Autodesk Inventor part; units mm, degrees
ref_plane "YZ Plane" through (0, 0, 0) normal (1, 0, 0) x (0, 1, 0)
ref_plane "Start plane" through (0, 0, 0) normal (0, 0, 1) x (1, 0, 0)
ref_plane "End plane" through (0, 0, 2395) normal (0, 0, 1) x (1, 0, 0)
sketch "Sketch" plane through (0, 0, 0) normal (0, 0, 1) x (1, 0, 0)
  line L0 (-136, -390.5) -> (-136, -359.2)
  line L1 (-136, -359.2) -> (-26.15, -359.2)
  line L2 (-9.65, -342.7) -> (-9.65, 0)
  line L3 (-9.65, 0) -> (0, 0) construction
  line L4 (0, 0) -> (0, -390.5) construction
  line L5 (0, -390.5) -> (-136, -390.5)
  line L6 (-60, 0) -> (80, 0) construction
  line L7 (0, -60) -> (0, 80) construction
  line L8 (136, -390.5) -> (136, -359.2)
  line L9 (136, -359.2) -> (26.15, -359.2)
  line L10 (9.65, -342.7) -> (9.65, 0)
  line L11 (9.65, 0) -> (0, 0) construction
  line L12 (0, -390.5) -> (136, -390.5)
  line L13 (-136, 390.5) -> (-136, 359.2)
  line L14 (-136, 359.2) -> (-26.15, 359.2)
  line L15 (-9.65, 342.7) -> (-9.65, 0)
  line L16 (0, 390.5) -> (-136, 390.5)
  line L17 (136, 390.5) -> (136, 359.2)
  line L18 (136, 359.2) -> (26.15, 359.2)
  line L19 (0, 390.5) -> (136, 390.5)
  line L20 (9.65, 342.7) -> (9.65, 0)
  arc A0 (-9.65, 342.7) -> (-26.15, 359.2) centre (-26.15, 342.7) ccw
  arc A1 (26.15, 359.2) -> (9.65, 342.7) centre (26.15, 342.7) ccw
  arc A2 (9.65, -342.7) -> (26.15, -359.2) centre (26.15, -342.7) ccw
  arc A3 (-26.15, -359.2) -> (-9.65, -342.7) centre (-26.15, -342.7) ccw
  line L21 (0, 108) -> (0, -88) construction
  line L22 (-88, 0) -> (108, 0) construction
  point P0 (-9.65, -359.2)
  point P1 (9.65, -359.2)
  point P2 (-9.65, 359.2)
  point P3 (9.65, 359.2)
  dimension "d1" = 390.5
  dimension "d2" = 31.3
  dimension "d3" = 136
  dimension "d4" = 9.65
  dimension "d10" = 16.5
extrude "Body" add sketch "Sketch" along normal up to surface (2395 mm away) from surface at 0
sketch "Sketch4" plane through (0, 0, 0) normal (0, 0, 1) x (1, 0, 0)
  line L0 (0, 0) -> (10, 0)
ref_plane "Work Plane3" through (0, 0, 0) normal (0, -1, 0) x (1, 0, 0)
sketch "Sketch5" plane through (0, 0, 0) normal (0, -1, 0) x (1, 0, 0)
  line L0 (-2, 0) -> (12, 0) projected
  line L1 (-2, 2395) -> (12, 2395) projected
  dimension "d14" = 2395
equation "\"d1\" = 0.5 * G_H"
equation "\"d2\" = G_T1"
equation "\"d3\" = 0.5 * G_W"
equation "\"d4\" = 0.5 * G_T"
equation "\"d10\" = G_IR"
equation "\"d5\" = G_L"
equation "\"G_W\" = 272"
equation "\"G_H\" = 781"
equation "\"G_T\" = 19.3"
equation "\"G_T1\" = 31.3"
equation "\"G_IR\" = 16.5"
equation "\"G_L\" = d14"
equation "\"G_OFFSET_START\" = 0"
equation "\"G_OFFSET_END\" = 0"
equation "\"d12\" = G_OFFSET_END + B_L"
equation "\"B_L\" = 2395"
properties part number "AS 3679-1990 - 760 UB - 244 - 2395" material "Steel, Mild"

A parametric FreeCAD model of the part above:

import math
import FreeCAD as App
import Part
import Sketcher

V = App.Vector
Q = App.Units.Quantity

doc = App.newDocument("Part")
body = doc.addObject("PartDesign::Body", "Body")

sketch1 = body.newObject("Sketcher::SketchObject", "Sketch")
sketch1.AttachmentSupport = (doc.getObject("XY_Plane"), [""])
sketch1.MapMode = "FlatFace"
sketch1.addGeometry([
    Part.LineSegment(V(-136, -359, 0), V(-136, -390, 0)),
    Part.LineSegment(V(-136, -390, 0), V(136, -390, 0)),
    Part.LineSegment(V(136, -390, 0), V(136, -359, 0)),
    Part.LineSegment(V(136, -359, 0), V(26, -359, 0)),
    Part.ArcOfCircle(Part.Circle(V(26, -343, 0), V(0, 0, 1), 16), math.radians(180), math.radians(270)),
    Part.LineSegment(V(10, -343, 0), V(10, 343, 0)),
    Part.ArcOfCircle(Part.Circle(V(26, 343, 0), V(0, 0, 1), 16), math.radians(90), math.radians(180)),
    Part.LineSegment(V(26, 359, 0), V(136, 359, 0)),
    Part.LineSegment(V(136, 359, 0), V(136, 390, 0)),
    Part.LineSegment(V(136, 390, 0), V(-136, 390, 0)),
    Part.LineSegment(V(-136, 390, 0), V(-136, 359, 0)),
    Part.LineSegment(V(-136, 359, 0), V(-26, 359, 0)),
    Part.ArcOfCircle(Part.Circle(V(-26, 343, 0), V(0, 0, 1), 16), math.radians(0), math.radians(90)),
    Part.LineSegment(V(-10, 343, 0), V(-10, -343, 0)),
    Part.ArcOfCircle(Part.Circle(V(-26, -343, 0), V(0, 0, 1), 16), math.radians(-90), math.radians(0)),
    Part.LineSegment(V(-26, -359, 0), V(-136, -359, 0)),
], False)
sketch1.addConstraint([
    Sketcher.Constraint("Coincident", 0, 2, 1, 1),
    Sketcher.Constraint("Coincident", 1, 2, 2, 1),
    Sketcher.Constraint("Coincident", 2, 2, 3, 1),
    Sketcher.Constraint("Tangent", 3, 2, 4, 2),
    Sketcher.Constraint("Tangent", 4, 1, 5, 1),
    Sketcher.Constraint("Tangent", 5, 2, 6, 2),
    Sketcher.Constraint("Tangent", 6, 1, 7, 1),
    Sketcher.Constraint("Coincident", 7, 2, 8, 1),
    Sketcher.Constraint("Coincident", 8, 2, 9, 1),
    Sketcher.Constraint("Coincident", 9, 2, 10, 1),
    Sketcher.Constraint("Coincident", 10, 2, 11, 1),
    Sketcher.Constraint("Tangent", 11, 2, 12, 2),
    Sketcher.Constraint("Tangent", 12, 1, 13, 1),
    Sketcher.Constraint("Tangent", 13, 2, 14, 2),
    Sketcher.Constraint("Tangent", 14, 1, 15, 1),
    Sketcher.Constraint("Coincident", 15, 2, 0, 1),
    Sketcher.Constraint("Vertical", 0),
    Sketcher.Constraint("Horizontal", 1),
    Sketcher.Constraint("Vertical", 2),
    Sketcher.Constraint("Horizontal", 3),
    Sketcher.Constraint("Vertical", 5),
    Sketcher.Constraint("Horizontal", 7),
    Sketcher.Constraint("Vertical", 8),
    Sketcher.Constraint("Horizontal", 9),
    Sketcher.Constraint("Vertical", 10),
    Sketcher.Constraint("Horizontal", 11),
    Sketcher.Constraint("Vertical", 13),
    Sketcher.Constraint("Horizontal", 15),
    Sketcher.Constraint("Equal", 4, 6),
    Sketcher.Constraint("Equal", 6, 12),
    Sketcher.Constraint("Equal", 12, 14),
    Sketcher.Constraint("Symmetric", 4, 3, 12, 3, -1, 1),
    Sketcher.Constraint("Symmetric", 0, 2, 8, 2, -1, 1),
    Sketcher.Constraint("Symmetric", 7, 2, 10, 2, -2),
    Sketcher.Constraint("Symmetric", 2, 2, 15, 2, -2),
    Sketcher.Constraint("Radius", 4, Q("16.5 mm")),
    Sketcher.Constraint("DistanceY", 0, 2, 0, 1, Q("31.3 mm")),
    Sketcher.Constraint("DistanceX", 0, 2, -1, 1, Q("136 mm")),
    Sketcher.Constraint("DistanceY", 0, 2, -1, 1, Q("390.5 mm")),
    Sketcher.Constraint("DistanceX", -1, 1, 4, 1, Q("9.65 mm")),
])
pad1 = body.newObject("PartDesign::Pad", "Pad")
pad1.Profile = sketch1
pad1.Length = 2395

doc.recompute()
